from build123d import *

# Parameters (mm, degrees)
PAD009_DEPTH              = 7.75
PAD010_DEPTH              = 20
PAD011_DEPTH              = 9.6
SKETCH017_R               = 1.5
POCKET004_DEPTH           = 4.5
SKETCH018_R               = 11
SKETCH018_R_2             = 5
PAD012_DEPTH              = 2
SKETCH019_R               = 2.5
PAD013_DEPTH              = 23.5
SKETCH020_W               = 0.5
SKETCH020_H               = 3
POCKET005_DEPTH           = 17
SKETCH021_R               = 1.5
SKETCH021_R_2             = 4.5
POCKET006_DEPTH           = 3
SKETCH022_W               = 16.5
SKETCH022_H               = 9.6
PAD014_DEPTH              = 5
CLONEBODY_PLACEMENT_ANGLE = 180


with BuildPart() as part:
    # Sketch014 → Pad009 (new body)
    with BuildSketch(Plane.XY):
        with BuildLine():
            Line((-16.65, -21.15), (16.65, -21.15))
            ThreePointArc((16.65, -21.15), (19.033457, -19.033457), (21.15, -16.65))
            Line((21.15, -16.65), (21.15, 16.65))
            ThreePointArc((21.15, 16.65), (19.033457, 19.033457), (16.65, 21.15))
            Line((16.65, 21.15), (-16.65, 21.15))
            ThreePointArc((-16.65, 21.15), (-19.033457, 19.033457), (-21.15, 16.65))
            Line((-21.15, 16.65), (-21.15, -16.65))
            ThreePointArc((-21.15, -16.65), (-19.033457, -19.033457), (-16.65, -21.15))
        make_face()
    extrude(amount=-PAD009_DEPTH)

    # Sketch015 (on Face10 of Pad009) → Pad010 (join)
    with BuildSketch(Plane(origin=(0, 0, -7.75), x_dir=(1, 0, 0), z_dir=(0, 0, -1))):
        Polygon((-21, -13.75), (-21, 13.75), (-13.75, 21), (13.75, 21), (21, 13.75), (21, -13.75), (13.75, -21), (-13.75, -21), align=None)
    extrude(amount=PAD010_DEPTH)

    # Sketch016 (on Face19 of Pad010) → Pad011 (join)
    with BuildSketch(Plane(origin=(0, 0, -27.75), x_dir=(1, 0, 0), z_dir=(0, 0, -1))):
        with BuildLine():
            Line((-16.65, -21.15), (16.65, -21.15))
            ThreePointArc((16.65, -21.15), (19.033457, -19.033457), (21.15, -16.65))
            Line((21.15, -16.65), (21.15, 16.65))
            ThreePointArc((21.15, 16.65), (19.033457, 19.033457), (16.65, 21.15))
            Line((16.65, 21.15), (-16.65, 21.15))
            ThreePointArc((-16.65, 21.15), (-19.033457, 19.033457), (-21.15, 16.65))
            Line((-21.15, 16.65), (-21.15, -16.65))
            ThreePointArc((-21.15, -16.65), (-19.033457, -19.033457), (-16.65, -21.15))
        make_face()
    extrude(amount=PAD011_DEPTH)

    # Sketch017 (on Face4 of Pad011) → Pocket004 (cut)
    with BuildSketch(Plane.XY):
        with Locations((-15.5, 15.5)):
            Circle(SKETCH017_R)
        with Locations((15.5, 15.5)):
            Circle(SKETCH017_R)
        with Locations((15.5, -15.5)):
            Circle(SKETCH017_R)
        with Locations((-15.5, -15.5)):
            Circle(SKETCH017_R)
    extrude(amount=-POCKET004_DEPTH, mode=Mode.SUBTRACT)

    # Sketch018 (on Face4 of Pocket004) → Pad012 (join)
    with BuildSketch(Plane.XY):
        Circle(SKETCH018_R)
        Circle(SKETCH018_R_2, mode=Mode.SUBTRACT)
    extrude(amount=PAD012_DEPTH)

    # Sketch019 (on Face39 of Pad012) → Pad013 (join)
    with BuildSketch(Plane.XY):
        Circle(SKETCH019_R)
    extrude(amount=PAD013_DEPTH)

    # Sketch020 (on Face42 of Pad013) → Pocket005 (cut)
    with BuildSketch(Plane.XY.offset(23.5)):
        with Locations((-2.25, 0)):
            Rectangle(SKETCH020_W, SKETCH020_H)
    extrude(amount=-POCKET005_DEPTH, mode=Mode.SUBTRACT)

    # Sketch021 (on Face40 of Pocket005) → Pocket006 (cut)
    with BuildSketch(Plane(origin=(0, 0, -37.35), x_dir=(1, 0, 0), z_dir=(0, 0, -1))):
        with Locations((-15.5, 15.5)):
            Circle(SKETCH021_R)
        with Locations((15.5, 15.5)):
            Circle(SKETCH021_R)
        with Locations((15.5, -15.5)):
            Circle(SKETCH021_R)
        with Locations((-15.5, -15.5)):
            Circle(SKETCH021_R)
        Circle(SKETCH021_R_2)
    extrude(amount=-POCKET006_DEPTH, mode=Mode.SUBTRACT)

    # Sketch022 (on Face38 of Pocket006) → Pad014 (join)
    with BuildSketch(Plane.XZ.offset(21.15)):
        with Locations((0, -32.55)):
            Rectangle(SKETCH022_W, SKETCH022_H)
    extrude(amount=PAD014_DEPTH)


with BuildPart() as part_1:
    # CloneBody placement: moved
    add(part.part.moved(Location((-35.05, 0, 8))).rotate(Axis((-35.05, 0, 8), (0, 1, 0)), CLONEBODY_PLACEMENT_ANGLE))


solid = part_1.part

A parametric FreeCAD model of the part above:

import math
import FreeCAD as App
import Part
import Sketcher
Q = App.Units.Quantity


def add_polygon(sketch, points):
    """Adds a closed chain of lines whose ends are joined by coincident constraints."""
    first, n = sketch.GeometryCount, len(points)
    for a, b in zip(points, points[1:] + points[:1]):
        sketch.addGeometry(Part.LineSegment(App.Vector(*a, 0), App.Vector(*b, 0)), False)
    for i in range(n):
        sketch.addConstraint(Sketcher.Constraint("Coincident", first + i, 2, first + (i + 1) % n, 1))

doc = App.newDocument("Part")
body = doc.addObject("PartDesign::Body", "Body")

# Sketch on XY plane
sketch1 = body.newObject("Sketcher::SketchObject", "Sketch")
sketch1.AttachmentSupport = (doc.getObject("XY_Plane"), [""])
sketch1.MapMode = "FlatFace"
sketch1.addGeometry([
    Part.LineSegment(App.Vector(-16.65, -21.15, 0), App.Vector(16.65, -21.15, 0)),  # 0
    Part.ArcOfCircle(Part.Circle(App.Vector(-0.000055, 0.000055, 0), App.Vector(0, 0, 1), 26.917451), math.radians(-51.788955), math.radians(-38.211045)),  # 1
    Part.LineSegment(App.Vector(21.15, -16.65, 0), App.Vector(21.15, 16.65, 0)),  # 2
    Part.ArcOfCircle(Part.Circle(App.Vector(-0.000055, -0.000055, 0), App.Vector(0, 0, 1), 26.917451), math.radians(38.211045), math.radians(51.788955)),  # 3
    Part.LineSegment(App.Vector(16.65, 21.15, 0), App.Vector(-16.65, 21.15, 0)),  # 4
    Part.ArcOfCircle(Part.Circle(App.Vector(0.000055, -0.000055, 0), App.Vector(0, 0, 1), 26.917451), math.radians(128.211045), math.radians(141.788955)),  # 5
    Part.LineSegment(App.Vector(-21.15, 16.65, 0), App.Vector(-21.15, -16.65, 0)),  # 6
    Part.ArcOfCircle(Part.Circle(App.Vector(0.000055, 0.000055, 0), App.Vector(0, 0, 1), 26.917451), math.radians(-141.788955), math.radians(-128.211045)),  # 7
], False)
sketch1.addConstraint([
    Sketcher.Constraint("Coincident", 0, 2, 1, 1),
    Sketcher.Constraint("Coincident", 1, 2, 2, 1),
    Sketcher.Constraint("Coincident", 2, 2, 3, 1),
    Sketcher.Constraint("Coincident", 3, 2, 4, 1),
    Sketcher.Constraint("Coincident", 4, 2, 5, 1),
    Sketcher.Constraint("Coincident", 5, 2, 6, 1),
    Sketcher.Constraint("Coincident", 6, 2, 7, 1),
    Sketcher.Constraint("Coincident", 7, 2, 0, 1),
    Sketcher.Constraint("Horizontal", 0),
    Sketcher.Constraint("Vertical", 2),
    Sketcher.Constraint("Horizontal", 4),
    Sketcher.Constraint("Vertical", 6),
    Sketcher.Constraint("Equal", 1, 3),
    Sketcher.Constraint("Equal", 3, 5),
    Sketcher.Constraint("Equal", 5, 7),
    Sketcher.Constraint("Symmetric", 1, 3, 5, 3, -1, 1),
    Sketcher.Constraint("Symmetric", 3, 3, 7, 3, -1, 1),
    Sketcher.Constraint("Symmetric", 3, 3, 5, 3, -2),
    Sketcher.Constraint("Horizontal", 2, 2, 5, 2),
    Sketcher.Constraint("Vertical", 0, 2, 3, 2),
    Sketcher.Constraint("Equal", 4, 2),
    Sketcher.Constraint("DistanceX", 0, 1, 0, 2, Q("33.3 mm")),
    Sketcher.Constraint("DistanceX", 0, 2, 1, 2, Q("4.5 mm")),
    Sketcher.Constraint("DistanceY", 0, 2, 1, 2, Q("4.5 mm")),
    Sketcher.Constraint("Radius", 1, Q("26.917451 mm")),
])
pad1 = body.newObject("PartDesign::Pad", "Pad")
pad1.Profile = sketch1
pad1.Length = 7.75
pad1.Reversed = True

# Sketch on XY plane
sketch2 = body.newObject("Sketcher::SketchObject", "Sketch001")
sketch2.AttachmentSupport = (doc.getObject("XY_Plane"), [""])
sketch2.MapMode = "FlatFace"
sketch2.AttachmentOffset = App.Placement(App.Vector(0, 0, -7.75), App.Rotation())
add_polygon(sketch2, [(-21, -14), (-21, 14), (-14, 21), (14, 21), (21, 14), (21, -14), (14, -21), (-14, -21)])  # lines 0-7
sketch2.addConstraint([
    Sketcher.Constraint("Vertical", 0),
    Sketcher.Constraint("Horizontal", 2),
    Sketcher.Constraint("Vertical", 4),
    Sketcher.Constraint("Horizontal", 6),
    Sketcher.Constraint("Symmetric", 0, 2, 4, 2, -1, 1),
    Sketcher.Constraint("Symmetric", 1, 2, 5, 2, -1, 1),
    Sketcher.Constraint("Perpendicular", 1, 3),
    Sketcher.Constraint("Perpendicular", 5, 7),
    Sketcher.Constraint("Horizontal", 0, 2, 3, 2),
    Sketcher.Constraint("Horizontal", 4, 2, 7, 2),
    Sketcher.Constraint("Vertical", 2, 2, 5, 2),
    Sketcher.Constraint("Equal", 6, 0),
    Sketcher.Constraint("DistanceX", 2, 1, 2, 2, Q("27.5 mm")),
    Sketcher.Constraint("DistanceX", 0, 2, -1, 1, Q("21 mm")),
])
pad2 = body.newObject("PartDesign::Pad", "Pad001")
pad2.Profile = sketch2
pad2.Length = 20
pad2.Reversed = True

# Sketch on XY plane
sketch3 = body.newObject("Sketcher::SketchObject", "Sketch002")
sketch3.AttachmentSupport = (doc.getObject("XY_Plane"), [""])
sketch3.MapMode = "FlatFace"
sketch3.AttachmentOffset = App.Placement(App.Vector(0, 0, -27.75), App.Rotation())
sketch3.addGeometry([
    Part.LineSegment(App.Vector(-16.65, 21.15, 0), App.Vector(16.65, 21.15, 0)),  # 0
    Part.ArcOfCircle(Part.Circle(App.Vector(-0.000055, -0.000055, 0), App.Vector(0, 0, 1), 26.917451), math.radians(38.211045), math.radians(51.788955)),  # 1
    Part.LineSegment(App.Vector(21.15, 16.65, 0), App.Vector(21.15, -16.65, 0)),  # 2
    Part.ArcOfCircle(Part.Circle(App.Vector(-0.000055, 0.000055, 0), App.Vector(0, 0, 1), 26.917451), math.radians(-51.788955), math.radians(-38.211045)),  # 3
    Part.LineSegment(App.Vector(16.65, -21.15, 0), App.Vector(-16.65, -21.15, 0)),  # 4
    Part.ArcOfCircle(Part.Circle(App.Vector(0.000055, 0.000055, 0), App.Vector(0, 0, 1), 26.917451), math.radians(-141.788955), math.radians(-128.211045)),  # 5
    Part.LineSegment(App.Vector(-21.15, -16.65, 0), App.Vector(-21.15, 16.65, 0)),  # 6
    Part.ArcOfCircle(Part.Circle(App.Vector(0.000055, -0.000055, 0), App.Vector(0, 0, 1), 26.917451), math.radians(128.211045), math.radians(141.788955)),  # 7
], False)
sketch3.addConstraint([
    Sketcher.Constraint("Coincident", 0, 2, 1, 2),
    Sketcher.Constraint("Coincident", 1, 1, 2, 1),
    Sketcher.Constraint("Coincident", 2, 2, 3, 2),
    Sketcher.Constraint("Coincident", 3, 1, 4, 1),
    Sketcher.Constraint("Coincident", 4, 2, 5, 2),
    Sketcher.Constraint("Coincident", 5, 1, 6, 1),
    Sketcher.Constraint("Coincident", 6, 2, 7, 2),
    Sketcher.Constraint("Coincident", 7, 1, 0, 1),
    Sketcher.Constraint("Horizontal", 0),
    Sketcher.Constraint("Vertical", 2),
    Sketcher.Constraint("Horizontal", 4),
    Sketcher.Constraint("Vertical", 6),
    Sketcher.Constraint("Equal", 1, 3),
    Sketcher.Constraint("Equal", 3, 5),
    Sketcher.Constraint("Equal", 5, 7),
    Sketcher.Constraint("Symmetric", 1, 3, 5, 3, -1, 1),
    Sketcher.Constraint("Symmetric", 3, 3, 7, 3, -1, 1),
    Sketcher.Constraint("Symmetric", 3, 3, 5, 3, -2),
    Sketcher.Constraint("Horizontal", 2, 2, 5, 1),
    Sketcher.Constraint("Vertical", 0, 2, 3, 1),
    Sketcher.Constraint("Equal", 4, 2),
    Sketcher.Constraint("DistanceX", 0, 1, 0, 2, Q("33.3 mm")),
    Sketcher.Constraint("DistanceX", 0, 2, 1, 1, Q("4.5 mm")),
    Sketcher.Constraint("DistanceY", 1, 1, 0, 2, Q("4.5 mm")),
    Sketcher.Constraint("Radius", 1, Q("26.917451 mm")),
])
pad3 = body.newObject("PartDesign::Pad", "Pad002")
pad3.Profile = sketch3
pad3.Length = 9.6
pad3.Reversed = True

# Sketch on XY plane
sketch4 = body.newObject("Sketcher::SketchObject", "Sketch003")
sketch4.AttachmentSupport = (doc.getObject("XY_Plane"), [""])
sketch4.MapMode = "FlatFace"
sketch4.addGeometry([
    Part.Circle(App.Vector(-15.5, 15.5, 0), App.Vector(0, 0, 1), 1.5),
    Part.Circle(App.Vector(15.5, 15.5, 0), App.Vector(0, 0, 1), 1.5),
    Part.Circle(App.Vector(15.5, -15.5, 0), App.Vector(0, 0, 1), 1.5),
    Part.Circle(App.Vector(-15.5, -15.5, 0), App.Vector(0, 0, 1), 1.5),
], False)
sketch4.addConstraint([
    Sketcher.Constraint("Equal", 0, 1),
    Sketcher.Constraint("Equal", 1, 2),
    Sketcher.Constraint("Equal", 2, 3),
    Sketcher.Constraint("Symmetric", 0, 3, 2, 3, -1, 1),
    Sketcher.Constraint("Symmetric", 1, 3, 3, 3, -1, 1),
    Sketcher.Constraint("Symmetric", 0, 3, 1, 3, -2),
    Sketcher.Constraint("Diameter", 0, Q("3 mm")),
    Sketcher.Constraint("DistanceX", 0, 3, 1, 3, Q("31 mm")),
    Sketcher.Constraint("DistanceY", 2, 3, 1, 3, Q("31 mm")),
])
pocket1 = body.newObject("PartDesign::Pocket", "Pocket")
pocket1.Profile = sketch4
pocket1.Length = 4.5

# Sketch on XY plane
sketch5 = body.newObject("Sketcher::SketchObject", "Sketch004")
sketch5.AttachmentSupport = (doc.getObject("XY_Plane"), [""])
sketch5.MapMode = "FlatFace"
sketch5.addGeometry([
    Part.Circle(App.Vector(0, 0, 0), App.Vector(0, 0, 1), 11),
    Part.Circle(App.Vector(0, 0, 0), App.Vector(0, 0, 1), 5),
], False)
sketch5.addConstraint([
    Sketcher.Constraint("Coincident", 0, 3, -1, 1),
    Sketcher.Constraint("Coincident", 1, 3, -1, 1),
    Sketcher.Constraint("Diameter", 0, Q("22 mm")),
    Sketcher.Constraint("Diameter", 1, Q("10 mm")),
])
pad4 = body.newObject("PartDesign::Pad", "Pad003")
pad4.Profile = sketch5
pad4.Length = 2

# Sketch on XY plane
sketch6 = body.newObject("Sketcher::SketchObject", "Sketch005")
sketch6.AttachmentSupport = (doc.getObject("XY_Plane"), [""])
sketch6.MapMode = "FlatFace"
sketch6.addGeometry(Part.Circle(App.Vector(0, 0, 0), App.Vector(0, 0, 1), 2.5), False)
sketch6.addConstraint([
    Sketcher.Constraint("Coincident", 0, 3, -1, 1),
    Sketcher.Constraint("Diameter", 0, Q("5 mm")),
])
pad5 = body.newObject("PartDesign::Pad", "Pad004")
pad5.Profile = sketch6
pad5.Length = 23.5

# Sketch on XY plane
sketch7 = body.newObject("Sketcher::SketchObject", "Sketch006")
sketch7.AttachmentSupport = (doc.getObject("XY_Plane"), [""])
sketch7.MapMode = "FlatFace"
sketch7.AttachmentOffset = App.Placement(App.Vector(0, 0, 23.5), App.Rotation())
add_polygon(sketch7, [(-2.5, 1.5), (-2.5, -1.5), (-2, -1.5), (-2, 1.5)])  # lines 0-3
sketch7.addConstraint([
    Sketcher.Constraint("Vertical", 0),
    Sketcher.Constraint("Horizontal", 1),
    Sketcher.Constraint("Vertical", 2),
    Sketcher.Constraint("Horizontal", 3),
    Sketcher.Constraint("DistanceY", 0, 2, 0, 1, Q("3 mm")),
    Sketcher.Constraint("DistanceX", 1, 1, 1, 2, Q("0.5 mm")),
    Sketcher.Constraint("DistanceX", 1, 2, -1, 1, Q("2 mm")),
    Sketcher.Constraint("DistanceY", 0, 2, -1, 1, Q("1.5 mm")),
])
pocket2 = body.newObject("PartDesign::Pocket", "Pocket001")
pocket2.Profile = sketch7
pocket2.Length = 17

# Sketch on XY plane
sketch8 = body.newObject("Sketcher::SketchObject", "Sketch007")
sketch8.AttachmentSupport = (doc.getObject("XY_Plane"), [""])
sketch8.MapMode = "FlatFace"
sketch8.AttachmentOffset = App.Placement(App.Vector(0, 0, -37.35), App.Rotation())
sketch8.addGeometry([
    Part.Circle(App.Vector(-15.5, -15.5, 0), App.Vector(0, 0, 1), 1.5),  # 0
    Part.Circle(App.Vector(15.5, -15.5, 0), App.Vector(0, 0, 1), 1.5),  # 1
    Part.Circle(App.Vector(15.5, 15.5, 0), App.Vector(0, 0, 1), 1.5),  # 2
    Part.Circle(App.Vector(-15.5, 15.5, 0), App.Vector(0, 0, 1), 1.5),  # 3
    Part.Circle(App.Vector(0, 0, 0), App.Vector(0, 0, 1), 4.5),  # 4
], False)
sketch8.addConstraint([
    Sketcher.Constraint("Coincident", 4, 3, -1, 1),
    Sketcher.Constraint("Equal", 0, 1),
    Sketcher.Constraint("Equal", 1, 2),
    Sketcher.Constraint("Equal", 2, 3),
    Sketcher.Constraint("Symmetric", 0, 3, 2, 3, -1, 1),
    Sketcher.Constraint("Symmetric", 1, 3, 3, 3, -1, 1),
    Sketcher.Constraint("Symmetric", 0, 3, 1, 3, -2),
    Sketcher.Constraint("Diameter", 0, Q("3 mm")),
    Sketcher.Constraint("Diameter", 4, Q("9 mm")),
    Sketcher.Constraint("DistanceX", 0, 3, 1, 3, Q("31 mm")),
    Sketcher.Constraint("DistanceY", 1, 3, 2, 3, Q("31 mm")),
])
pocket3 = body.newObject("PartDesign::Pocket", "Pocket002")
pocket3.Profile = sketch8
pocket3.Length = 3
pocket3.Reversed = True

# Sketch on XZ plane
sketch9 = body.newObject("Sketcher::SketchObject", "Sketch008")
sketch9.AttachmentSupport = (doc.getObject("XZ_Plane"), [""])
sketch9.MapMode = "FlatFace"
sketch9.AttachmentOffset = App.Placement(App.Vector(0, 0, 21.15), App.Rotation())
add_polygon(sketch9, [(-8, -28), (-8, -37), (8, -37), (8, -28)])  # lines 0-3
sketch9.addConstraint([
    Sketcher.Constraint("Vertical", 0),
    Sketcher.Constraint("Horizontal", 1),
    Sketcher.Constraint("Vertical", 2),
    Sketcher.Constraint("Horizontal", 3),
    Sketcher.Constraint("DistanceX", 1, 1, 1, 2, Q("16.5 mm")),
    Sketcher.Constraint("DistanceY", 0, 2, 0, 1, Q("9.6 mm")),
    Sketcher.Constraint("DistanceX", 0, 2, -1, 1, Q("8.25 mm")),
    Sketcher.Constraint("DistanceY", 0, 2, -1, 1, Q("37.35 mm")),
])
pad6 = body.newObject("PartDesign::Pad", "Pad005")
pad6.Profile = sketch9
pad6.Length = 5
body2 = doc.addObject("PartDesign::Body", "Body001")
doc.recompute()

body.Placement = App.Placement(App.Vector(-35.05, 0, 8), App.Rotation(App.Vector(0, 1, 0), 180))
boolean = body2.newObject("PartDesign::Boolean", "Boolean")
boolean.Type = "Fuse"
boolean.addObjects([body])

doc.recompute()
